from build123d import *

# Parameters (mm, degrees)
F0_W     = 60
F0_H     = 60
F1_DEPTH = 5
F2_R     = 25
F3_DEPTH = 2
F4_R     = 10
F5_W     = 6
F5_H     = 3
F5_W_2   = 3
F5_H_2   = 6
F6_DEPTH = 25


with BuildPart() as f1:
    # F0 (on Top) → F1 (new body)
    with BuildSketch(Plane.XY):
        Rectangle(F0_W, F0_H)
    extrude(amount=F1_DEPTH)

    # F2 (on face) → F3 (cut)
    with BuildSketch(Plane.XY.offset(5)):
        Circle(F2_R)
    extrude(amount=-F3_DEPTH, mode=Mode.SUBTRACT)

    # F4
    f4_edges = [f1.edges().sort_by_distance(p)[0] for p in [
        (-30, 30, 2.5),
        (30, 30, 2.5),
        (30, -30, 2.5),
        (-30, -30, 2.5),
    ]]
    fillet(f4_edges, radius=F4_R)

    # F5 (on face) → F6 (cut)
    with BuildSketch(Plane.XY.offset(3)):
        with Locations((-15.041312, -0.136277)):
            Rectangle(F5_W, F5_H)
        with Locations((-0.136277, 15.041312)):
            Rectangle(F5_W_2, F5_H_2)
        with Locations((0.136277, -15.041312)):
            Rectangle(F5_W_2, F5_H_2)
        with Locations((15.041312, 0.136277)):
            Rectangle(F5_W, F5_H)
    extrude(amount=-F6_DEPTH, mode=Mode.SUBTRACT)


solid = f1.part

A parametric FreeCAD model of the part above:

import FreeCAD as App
import Part
import Sketcher
from FreeCAD import Vector
Q = App.Units.Quantity


def edges_at(feature, points):
    """Names of the edges that pass closest to the given points."""
    edges = feature.Shape.Edges
    near = lambda p: min(range(len(edges)), key=lambda i: edges[i].distToShape(Part.Vertex(*p))[0])
    return sorted({f"Edge{near(p) + 1}" for p in points})


def add_polygon(sketch, points):
    """Adds a closed chain of lines whose ends are joined by coincident constraints."""
    first, n = sketch.GeometryCount, len(points)
    for a, b in zip(points, points[1:] + points[:1]):
        sketch.addGeometry(Part.LineSegment(App.Vector(*a, 0), App.Vector(*b, 0)), False)
    for i in range(n):
        sketch.addConstraint(Sketcher.Constraint("Coincident", first + i, 2, first + (i + 1) % n, 1))

doc = App.newDocument("Part")
body = doc.addObject("PartDesign::Body", "Body")

sketch1 = body.newObject("Sketcher::SketchObject", "Sketch")
sketch1.AttachmentSupport = (doc.getObject("XY_Plane"), [""])
sketch1.MapMode = "FlatFace"
add_polygon(sketch1, [(-30, 30), (-30, -30), (30, -30), (30, 30)])
sketch1.addConstraint(Sketcher.Constraint("Vertical", 0))
sketch1.addConstraint(Sketcher.Constraint("Horizontal", 1))
sketch1.addConstraint(Sketcher.Constraint("Vertical", 2))
sketch1.addConstraint(Sketcher.Constraint("Horizontal", 3))
sketch1.addConstraint(Sketcher.Constraint("Symmetric", 0, 2, 2, 2, -1, 1))
sketch1.addConstraint(Sketcher.Constraint("Equal", 3, 0))
sketch1.addConstraint(Sketcher.Constraint("DistanceX", 1, 1, 1, 2, Q("60 mm")))
pad1 = body.newObject("PartDesign::Pad", "Pad")
pad1.Profile = sketch1
pad1.Length = 5

sketch2 = body.newObject("Sketcher::SketchObject", "Sketch001")
sketch2.AttachmentSupport = (doc.getObject("XY_Plane"), [""])
sketch2.MapMode = "FlatFace"
sketch2.AttachmentOffset = App.Placement(Vector(0, 0, 5), App.Rotation())
sketch2.addGeometry(Part.Circle(Vector(0, 0, 0), Vector(0, 0, 1), 25), False)
sketch2.addConstraint(Sketcher.Constraint("Coincident", 0, 3, -1, 1))
sketch2.addConstraint(Sketcher.Constraint("Diameter", 0, Q("50 mm")))
pocket1 = body.newObject("PartDesign::Pocket", "Pocket")
pocket1.Profile = sketch2
pocket1.Length = 2
doc.recompute()

fillet = body.newObject("PartDesign::Fillet", "Fillet")
fillet.Base = (pocket1, edges_at(pocket1, [
    (-30, 30, 2.5),
    (30, 30, 2.5),
    (30, -30, 2.5),
    (-30, -30, 2.5),
]))
fillet.Radius = 10

sketch3 = body.newObject("Sketcher::SketchObject", "Sketch002")
sketch3.AttachmentSupport = (doc.getObject("XY_Plane"), [""])
sketch3.MapMode = "FlatFace"
sketch3.AttachmentOffset = App.Placement(Vector(0, 0, 3), App.Rotation())
add_polygon(sketch3, [(-18, 1.4), (-18, -1.6), (-12, -1.6), (-12, 1.4)])
add_polygon(sketch3, [(-1.6, 18), (-1.6, 12), (1.4, 12), (1.4, 18)])
add_polygon(sketch3, [(-1.4, -12), (-1.4, -18), (1.6, -18), (1.6, -12)])
add_polygon(sketch3, [(12, 1.6), (12, -1.4), (18, -1.4), (18, 1.6)])
sketch3.addConstraint(Sketcher.Constraint("Vertical", 0))
sketch3.addConstraint(Sketcher.Constraint("Horizontal", 1))
sketch3.addConstraint(Sketcher.Constraint("Vertical", 2))
sketch3.addConstraint(Sketcher.Constraint("Horizontal", 3))
sketch3.addConstraint(Sketcher.Constraint("Vertical", 4))
sketch3.addConstraint(Sketcher.Constraint("Horizontal", 5))
sketch3.addConstraint(Sketcher.Constraint("Vertical", 6))
sketch3.addConstraint(Sketcher.Constraint("Horizontal", 7))
sketch3.addConstraint(Sketcher.Constraint("Vertical", 8))
sketch3.addConstraint(Sketcher.Constraint("Horizontal", 9))
sketch3.addConstraint(Sketcher.Constraint("Vertical", 10))
sketch3.addConstraint(Sketcher.Constraint("Horizontal", 11))
sketch3.addConstraint(Sketcher.Constraint("Vertical", 12))
sketch3.addConstraint(Sketcher.Constraint("Horizontal", 13))
sketch3.addConstraint(Sketcher.Constraint("Vertical", 14))
sketch3.addConstraint(Sketcher.Constraint("Horizontal", 15))
sketch3.addConstraint(Sketcher.Constraint("Symmetric", 6, 2, 8, 2, -1, 1))
sketch3.addConstraint(Sketcher.Constraint("Symmetric", 4, 2, 10, 2, -1, 1))
sketch3.addConstraint(Sketcher.Constraint("Symmetric", 2, 2, 12, 2, -1, 1))
sketch3.addConstraint(Sketcher.Constraint("Symmetric", 0, 2, 14, 2, -1, 1))
sketch3.addConstraint(Sketcher.Constraint("Equal", 11, 0))
sketch3.addConstraint(Sketcher.Constraint("Equal", 15, 4))
sketch3.addConstraint(Sketcher.Constraint("DistanceX", 1, 1, 1, 2, Q("6 mm")))
sketch3.addConstraint(Sketcher.Constraint("DistanceX", 5, 1, 5, 2, Q("3 mm")))
sketch3.addConstraint(Sketcher.Constraint("DistanceY", 2, 2, 4, 2, Q("10.677589 mm")))
sketch3.addConstraint(Sketcher.Constraint("DistanceX", 1, 2, 8, 2, Q("10.677589 mm")))
sketch3.addConstraint(Sketcher.Constraint("DistanceX", 0, 2, -1, 1, Q("18.041312 mm")))
sketch3.addConstraint(Sketcher.Constraint("DistanceY", 0, 2, -1, 1, Q("1.636277 mm")))
pocket2 = body.newObject("PartDesign::Pocket", "Pocket001")
pocket2.Profile = sketch3
pocket2.Length = 25

doc.recompute()
